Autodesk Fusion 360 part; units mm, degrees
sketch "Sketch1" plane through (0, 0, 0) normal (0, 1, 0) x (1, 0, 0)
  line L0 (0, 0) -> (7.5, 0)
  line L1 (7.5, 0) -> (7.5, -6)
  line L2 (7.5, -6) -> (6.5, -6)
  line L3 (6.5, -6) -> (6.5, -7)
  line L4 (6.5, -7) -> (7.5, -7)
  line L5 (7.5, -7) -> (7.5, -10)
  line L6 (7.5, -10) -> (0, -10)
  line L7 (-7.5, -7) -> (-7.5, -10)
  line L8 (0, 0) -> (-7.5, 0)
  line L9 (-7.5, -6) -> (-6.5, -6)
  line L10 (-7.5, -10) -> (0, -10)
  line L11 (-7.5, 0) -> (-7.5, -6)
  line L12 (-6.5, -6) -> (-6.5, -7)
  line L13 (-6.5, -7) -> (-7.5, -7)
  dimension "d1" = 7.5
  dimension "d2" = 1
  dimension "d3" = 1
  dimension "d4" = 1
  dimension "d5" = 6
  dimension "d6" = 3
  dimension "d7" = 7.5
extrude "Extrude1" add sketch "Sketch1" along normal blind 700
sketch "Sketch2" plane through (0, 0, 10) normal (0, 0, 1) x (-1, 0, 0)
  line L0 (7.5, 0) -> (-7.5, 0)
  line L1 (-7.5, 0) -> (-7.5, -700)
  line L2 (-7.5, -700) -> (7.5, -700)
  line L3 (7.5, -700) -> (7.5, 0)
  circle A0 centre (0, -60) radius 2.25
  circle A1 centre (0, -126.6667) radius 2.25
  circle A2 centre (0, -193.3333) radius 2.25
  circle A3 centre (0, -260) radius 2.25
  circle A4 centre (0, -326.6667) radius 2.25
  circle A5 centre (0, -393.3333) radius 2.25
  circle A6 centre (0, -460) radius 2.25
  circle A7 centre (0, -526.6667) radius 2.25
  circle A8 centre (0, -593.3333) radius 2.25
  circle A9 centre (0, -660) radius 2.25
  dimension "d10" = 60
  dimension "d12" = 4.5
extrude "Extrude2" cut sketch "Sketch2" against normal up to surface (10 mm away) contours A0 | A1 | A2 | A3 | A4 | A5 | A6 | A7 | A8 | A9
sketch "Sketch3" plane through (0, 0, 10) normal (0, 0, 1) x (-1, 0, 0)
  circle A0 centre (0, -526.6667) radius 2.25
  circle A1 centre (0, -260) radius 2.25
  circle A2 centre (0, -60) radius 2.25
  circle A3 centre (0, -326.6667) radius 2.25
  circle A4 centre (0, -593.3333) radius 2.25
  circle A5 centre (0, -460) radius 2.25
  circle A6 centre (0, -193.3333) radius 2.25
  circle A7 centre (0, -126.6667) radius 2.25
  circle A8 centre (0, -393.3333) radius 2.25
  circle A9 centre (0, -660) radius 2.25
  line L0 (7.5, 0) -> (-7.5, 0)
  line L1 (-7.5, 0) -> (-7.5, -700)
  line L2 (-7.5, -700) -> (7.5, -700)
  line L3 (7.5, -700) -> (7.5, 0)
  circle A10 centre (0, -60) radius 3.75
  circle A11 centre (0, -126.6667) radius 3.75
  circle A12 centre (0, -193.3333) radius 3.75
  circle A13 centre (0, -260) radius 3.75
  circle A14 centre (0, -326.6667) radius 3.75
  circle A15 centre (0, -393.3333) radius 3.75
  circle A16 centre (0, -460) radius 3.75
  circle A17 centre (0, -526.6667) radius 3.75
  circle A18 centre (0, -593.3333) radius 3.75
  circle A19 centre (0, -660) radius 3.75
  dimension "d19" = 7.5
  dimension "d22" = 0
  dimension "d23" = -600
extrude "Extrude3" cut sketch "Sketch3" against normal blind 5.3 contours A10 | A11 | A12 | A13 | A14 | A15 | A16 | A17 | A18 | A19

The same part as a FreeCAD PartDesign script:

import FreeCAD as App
import Part
import Sketcher

doc = App.newDocument("Part")
params = doc.addObject("Spreadsheet::Sheet", "Params")
for row, (alias, value) in enumerate([
    ("sketch1_width", "1 mm"),
    ("sketch1_height", "6 mm"),
    ("sketch1_height2", "3 mm"),
    ("pad1_length", "700 mm"),
    ("sketch2_diameter", "4.5 mm"),
    ("pocket1_length", "10 mm"),
    ("sketch3_diameter", "7.5 mm"),
    ("sketch3_diameter2", "4.5 mm"),
    ("pocket2_length", "5.3 mm"),
], start=1):
    params.set(f"A{row}", alias)
    params.set(f"B{row}", "=" + value)
    params.setAlias(f"B{row}", alias)

body = doc.addObject("PartDesign::Body", "Body")

sketch1 = body.newObject("Sketcher::SketchObject", "Sketch")
sketch1.AttachmentSupport = (doc.getObject("XZ_Plane"), [""])
sketch1.MapMode = "FlatFace"
sketch1.addGeometry([
    Part.LineSegment(App.Vector(7.5, 0, 0), App.Vector(-7.5, 0, 0)),
    Part.LineSegment(App.Vector(-7.5, 0, 0), App.Vector(-7.5, 6, 0)),
    Part.LineSegment(App.Vector(-7.5, 6, 0), App.Vector(-6.5, 6, 0)),
    Part.LineSegment(App.Vector(-6.5, 6, 0), App.Vector(-6.5, 7, 0)),
    Part.LineSegment(App.Vector(-6.5, 7, 0), App.Vector(-7.5, 7, 0)),
    Part.LineSegment(App.Vector(-7.5, 7, 0), App.Vector(-7.5, 10, 0)),
    Part.LineSegment(App.Vector(-7.5, 10, 0), App.Vector(7.5, 10, 0)),
    Part.LineSegment(App.Vector(7.5, 10, 0), App.Vector(7.5, 7, 0)),
    Part.LineSegment(App.Vector(7.5, 7, 0), App.Vector(6.5, 7, 0)),
    Part.LineSegment(App.Vector(6.5, 7, 0), App.Vector(6.5, 6, 0)),
    Part.LineSegment(App.Vector(6.5, 6, 0), App.Vector(7.5, 6, 0)),
    Part.LineSegment(App.Vector(7.5, 6, 0), App.Vector(7.5, 0, 0)),
], False)
sketch1.addConstraint([
    Sketcher.Constraint("Coincident", 0, 2, 1, 1),
    Sketcher.Constraint("Coincident", 1, 2, 2, 1),
    Sketcher.Constraint("Coincident", 2, 2, 3, 1),
    Sketcher.Constraint("Coincident", 3, 2, 4, 1),
    Sketcher.Constraint("Coincident", 4, 2, 5, 1),
    Sketcher.Constraint("Coincident", 5, 2, 6, 1),
    Sketcher.Constraint("Coincident", 6, 2, 7, 1),
    Sketcher.Constraint("Coincident", 7, 2, 8, 1),
    Sketcher.Constraint("Coincident", 8, 2, 9, 1),
    Sketcher.Constraint("Coincident", 9, 2, 10, 1),
    Sketcher.Constraint("Coincident", 10, 2, 11, 1),
    Sketcher.Constraint("Coincident", 11, 2, 0, 1),
    Sketcher.Constraint("Horizontal", 0),
    Sketcher.Constraint("Vertical", 1),
    Sketcher.Constraint("Horizontal", 2),
    Sketcher.Constraint("Vertical", 3),
    Sketcher.Constraint("Horizontal", 4),
    Sketcher.Constraint("Vertical", 5),
    Sketcher.Constraint("Horizontal", 6),
    Sketcher.Constraint("Vertical", 7),
    Sketcher.Constraint("Horizontal", 8),
    Sketcher.Constraint("Vertical", 9),
    Sketcher.Constraint("Horizontal", 10),
    Sketcher.Constraint("Vertical", 11),
    Sketcher.Constraint("Symmetric", 0, 2, 11, 2, -1, 1),
    Sketcher.Constraint("Symmetric", 4, 2, 7, 2, -2),
    Sketcher.Constraint("Symmetric", 2, 2, 9, 2, -2),
    Sketcher.Constraint("Vertical", 1, 2, 4, 2),
    Sketcher.Constraint("Equal", 10, 3),
    Sketcher.Constraint("DistanceX", 2, 1, 2, 2, 1.0),
    Sketcher.Constraint("DistanceY", 1, 1, 1, 2, 6.0),
    Sketcher.Constraint("DistanceY", 5, 1, 5, 2, 3.0),
    Sketcher.Constraint("DistanceX", 0, 2, -1, 1, 7.5),
])
sketch1.setExpression("Constraints[29]", "Params.sketch1_width")
sketch1.setExpression("Constraints[30]", "Params.sketch1_height")
sketch1.setExpression("Constraints[31]", "Params.sketch1_height2")
pad1 = body.newObject("PartDesign::Pad", "Pad")
pad1.Profile = sketch1
pad1.setExpression("Length", "Params.pad1_length")
pad1.Reversed = True

sketch2 = body.newObject("Sketcher::SketchObject", "Sketch001")
sketch2.AttachmentSupport = (doc.getObject("XY_Plane"), [""])
sketch2.MapMode = "FlatFace"
sketch2.AttachmentOffset = App.Placement(App.Vector(0, 0, 10), App.Rotation())
sketch2.addGeometry([
    Part.Circle(App.Vector(0, 60, 0), App.Vector(0, 0, 1), 2.2),
    Part.Circle(App.Vector(0, 126.7, 0), App.Vector(0, 0, 1), 2.2),
    Part.Circle(App.Vector(0, 193.3, 0), App.Vector(0, 0, 1), 2.2),
    Part.Circle(App.Vector(0, 260, 0), App.Vector(0, 0, 1), 2.2),
    Part.Circle(App.Vector(0, 326.7, 0), App.Vector(0, 0, 1), 2.2),
    Part.Circle(App.Vector(0, 393.3, 0), App.Vector(0, 0, 1), 2.2),
    Part.Circle(App.Vector(0, 460, 0), App.Vector(0, 0, 1), 2.2),
    Part.Circle(App.Vector(0, 526.7, 0), App.Vector(0, 0, 1), 2.2),
    Part.Circle(App.Vector(0, 593.3, 0), App.Vector(0, 0, 1), 2.2),
    Part.Circle(App.Vector(0, 660, 0), App.Vector(0, 0, 1), 2.2),
], False)
sketch2.addConstraint([
    Sketcher.Constraint("Equal", 0, 1),
    Sketcher.Constraint("Equal", 1, 2),
    Sketcher.Constraint("Equal", 2, 3),
    Sketcher.Constraint("Equal", 3, 4),
    Sketcher.Constraint("Equal", 4, 5),
    Sketcher.Constraint("Equal", 5, 6),
    Sketcher.Constraint("Equal", 6, 7),
    Sketcher.Constraint("Equal", 7, 8),
    Sketcher.Constraint("Equal", 8, 9),
    Sketcher.Constraint("PointOnObject", 0, 3, -2),
    Sketcher.Constraint("PointOnObject", 1, 3, -2),
    Sketcher.Constraint("PointOnObject", 2, 3, -2),
    Sketcher.Constraint("PointOnObject", 3, 3, -2),
    Sketcher.Constraint("PointOnObject", 4, 3, -2),
    Sketcher.Constraint("PointOnObject", 5, 3, -2),
    Sketcher.Constraint("PointOnObject", 6, 3, -2),
    Sketcher.Constraint("PointOnObject", 7, 3, -2),
    Sketcher.Constraint("PointOnObject", 8, 3, -2),
    Sketcher.Constraint("PointOnObject", 9, 3, -2),
    Sketcher.Constraint("Diameter", 0, 4.5),
    Sketcher.Constraint("DistanceY", -1, 1, 0, 3, 60.0),
    Sketcher.Constraint("DistanceY", -1, 1, 3, 3, 260.0),
    Sketcher.Constraint("DistanceY", -1, 1, 6, 3, 460.0),
    Sketcher.Constraint("DistanceY", -1, 1, 9, 3, 660.0),
    Sketcher.Constraint("DistanceY", 1, 3, 4, 3, 200.0),
    Sketcher.Constraint("DistanceY", 2, 3, 5, 3, 200.0),
    Sketcher.Constraint("DistanceY", 4, 3, 7, 3, 200.0),
    Sketcher.Constraint("DistanceY", 5, 3, 8, 3, 200.0),
    Sketcher.Constraint("DistanceY", -1, 1, 1, 3, 126.6667),
    Sketcher.Constraint("DistanceY", -1, 1, 2, 3, 193.3333),
])
sketch2.setExpression("Constraints[19]", "Params.sketch2_diameter")
pocket1 = body.newObject("PartDesign::Pocket", "Pocket")
pocket1.Profile = sketch2
pocket1.setExpression("Length", "Params.pocket1_length")

sketch3 = body.newObject("Sketcher::SketchObject", "Sketch002")
sketch3.AttachmentSupport = (doc.getObject("XY_Plane"), [""])
sketch3.MapMode = "FlatFace"
sketch3.AttachmentOffset = App.Placement(App.Vector(0, 0, 10), App.Rotation())
sketch3.addGeometry([
    Part.Circle(App.Vector(0, 60, 0), App.Vector(0, 0, 1), 3.8),
    Part.Circle(App.Vector(0, 60, 0), App.Vector(0, 0, 1), 2.2),
    Part.Circle(App.Vector(0, 126.7, 0), App.Vector(0, 0, 1), 3.8),
    Part.Circle(App.Vector(0, 126.7, 0), App.Vector(0, 0, 1), 2.2),
    Part.Circle(App.Vector(0, 193.3, 0), App.Vector(0, 0, 1), 3.8),
    Part.Circle(App.Vector(0, 193.3, 0), App.Vector(0, 0, 1), 2.2),
    Part.Circle(App.Vector(0, 260, 0), App.Vector(0, 0, 1), 3.8),
    Part.Circle(App.Vector(0, 260, 0), App.Vector(0, 0, 1), 2.2),
    Part.Circle(App.Vector(0, 326.7, 0), App.Vector(0, 0, 1), 3.8),
    Part.Circle(App.Vector(0, 326.7, 0), App.Vector(0, 0, 1), 2.2),
    Part.Circle(App.Vector(0, 393.3, 0), App.Vector(0, 0, 1), 3.8),
    Part.Circle(App.Vector(0, 393.3, 0), App.Vector(0, 0, 1), 2.2),
    Part.Circle(App.Vector(0, 460, 0), App.Vector(0, 0, 1), 3.8),
    Part.Circle(App.Vector(0, 460, 0), App.Vector(0, 0, 1), 2.2),
    Part.Circle(App.Vector(0, 526.7, 0), App.Vector(0, 0, 1), 3.8),
    Part.Circle(App.Vector(0, 526.7, 0), App.Vector(0, 0, 1), 2.2),
    Part.Circle(App.Vector(0, 593.3, 0), App.Vector(0, 0, 1), 3.8),
    Part.Circle(App.Vector(0, 593.3, 0), App.Vector(0, 0, 1), 2.2),
    Part.Circle(App.Vector(0, 660, 0), App.Vector(0, 0, 1), 3.8),
    Part.Circle(App.Vector(0, 660, 0), App.Vector(0, 0, 1), 2.2),
], False)
sketch3.addConstraint([
    Sketcher.Constraint("Coincident", 1, 3, 0, 3),
    Sketcher.Constraint("Coincident", 3, 3, 2, 3),
    Sketcher.Constraint("Coincident", 5, 3, 4, 3),
    Sketcher.Constraint("Coincident", 7, 3, 6, 3),
    Sketcher.Constraint("Coincident", 9, 3, 8, 3),
    Sketcher.Constraint("Coincident", 11, 3, 10, 3),
    Sketcher.Constraint("Coincident", 13, 3, 12, 3),
    Sketcher.Constraint("Coincident", 15, 3, 14, 3),
    Sketcher.Constraint("Coincident", 17, 3, 16, 3),
    Sketcher.Constraint("Coincident", 19, 3, 18, 3),
    Sketcher.Constraint("Equal", 0, 2),
    Sketcher.Constraint("Equal", 1, 3),
    Sketcher.Constraint("Equal", 2, 4),
    Sketcher.Constraint("Equal", 3, 5),
    Sketcher.Constraint("Equal", 4, 6),
    Sketcher.Constraint("Equal", 5, 7),
    Sketcher.Constraint("Equal", 6, 8),
    Sketcher.Constraint("Equal", 7, 9),
    Sketcher.Constraint("Equal", 8, 10),
    Sketcher.Constraint("Equal", 9, 11),
    Sketcher.Constraint("Equal", 10, 12),
    Sketcher.Constraint("Equal", 11, 13),
    Sketcher.Constraint("Equal", 12, 14),
    Sketcher.Constraint("Equal", 13, 15),
    Sketcher.Constraint("Equal", 14, 16),
    Sketcher.Constraint("Equal", 15, 17),
    Sketcher.Constraint("Equal", 16, 18),
    Sketcher.Constraint("Equal", 17, 19),
    Sketcher.Constraint("PointOnObject", 0, 3, -2),
    Sketcher.Constraint("PointOnObject", 2, 3, -2),
    Sketcher.Constraint("PointOnObject", 4, 3, -2),
    Sketcher.Constraint("PointOnObject", 6, 3, -2),
    Sketcher.Constraint("PointOnObject", 8, 3, -2),
    Sketcher.Constraint("PointOnObject", 10, 3, -2),
    Sketcher.Constraint("PointOnObject", 12, 3, -2),
    Sketcher.Constraint("PointOnObject", 14, 3, -2),
    Sketcher.Constraint("PointOnObject", 16, 3, -2),
    Sketcher.Constraint("PointOnObject", 18, 3, -2),
    Sketcher.Constraint("Diameter", 0, 7.5),
    Sketcher.Constraint("Diameter", 1, 4.5),
    Sketcher.Constraint("DistanceY", -1, 1, 0, 3, 60.0),
    Sketcher.Constraint("DistanceY", -1, 1, 6, 3, 260.0),
    Sketcher.Constraint("DistanceY", -1, 1, 12, 3, 460.0),
    Sketcher.Constraint("DistanceY", -1, 1, 18, 3, 660.0),
    Sketcher.Constraint("DistanceY", 2, 3, 8, 3, 200.0),
    Sketcher.Constraint("DistanceY", 4, 3, 10, 3, 200.0),
    Sketcher.Constraint("DistanceY", 8, 3, 14, 3, 200.0),
    Sketcher.Constraint("DistanceY", 10, 3, 16, 3, 200.0),
    Sketcher.Constraint("DistanceY", -1, 1, 2, 3, 126.6667),
    Sketcher.Constraint("DistanceY", -1, 1, 4, 3, 193.3333),
])
sketch3.setExpression("Constraints[38]", "Params.sketch3_diameter")
sketch3.setExpression("Constraints[39]", "Params.sketch3_diameter2")
pocket2 = body.newObject("PartDesign::Pocket", "Pocket001")
pocket2.Profile = sketch3
pocket2.setExpression("Length", "Params.pocket2_length")

doc.recompute()
